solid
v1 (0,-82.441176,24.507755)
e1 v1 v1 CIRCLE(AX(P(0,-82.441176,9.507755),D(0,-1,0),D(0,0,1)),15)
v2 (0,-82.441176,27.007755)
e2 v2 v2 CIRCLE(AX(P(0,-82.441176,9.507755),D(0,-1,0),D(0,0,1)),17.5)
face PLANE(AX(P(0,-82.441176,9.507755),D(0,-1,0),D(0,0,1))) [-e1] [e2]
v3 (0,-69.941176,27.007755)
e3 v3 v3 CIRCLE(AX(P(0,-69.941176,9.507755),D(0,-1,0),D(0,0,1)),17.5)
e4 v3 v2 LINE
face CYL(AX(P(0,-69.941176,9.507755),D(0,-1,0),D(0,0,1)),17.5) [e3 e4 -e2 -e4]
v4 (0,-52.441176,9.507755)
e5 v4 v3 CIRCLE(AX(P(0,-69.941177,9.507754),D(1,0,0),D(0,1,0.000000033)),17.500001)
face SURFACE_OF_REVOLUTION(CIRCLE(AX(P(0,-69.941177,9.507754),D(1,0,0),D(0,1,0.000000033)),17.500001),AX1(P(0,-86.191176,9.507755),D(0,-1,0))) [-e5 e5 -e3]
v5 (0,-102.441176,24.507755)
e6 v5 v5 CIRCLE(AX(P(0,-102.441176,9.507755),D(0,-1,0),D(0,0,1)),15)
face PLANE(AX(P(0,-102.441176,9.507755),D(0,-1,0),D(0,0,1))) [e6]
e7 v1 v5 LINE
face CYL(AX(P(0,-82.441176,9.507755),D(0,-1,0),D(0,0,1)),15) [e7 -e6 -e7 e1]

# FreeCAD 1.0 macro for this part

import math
import FreeCAD as App
import Part
import Sketcher
from FreeCAD import Vector
Q = App.Units.Quantity

doc = App.newDocument("Part")
body = doc.addObject("PartDesign::Body", "Body")

# Sketch on YZ plane
sketch1 = doc.addObject("Sketcher::SketchObject", "Sketch")
body.addObject(sketch1)
sketch1.AttachmentSupport = (doc.YZ_Plane, [""])
sketch1.MapMode = "FlatFace"
sketch1.addGeometry([
    Part.LineSegment(Vector(-102.4, 24.5, 0), Vector(-102.4, 9.5, 0)),  # 0
    Part.LineSegment(Vector(-102.4, 9.5, 0), Vector(-52.4, 9.5, 0)),  # 1
    Part.ArcOfCircle(Part.Circle(Vector(-69.9, 9.5, 0), Vector(0, 0, 1), 17.5), math.radians(0), math.radians(90)),  # 2
    Part.LineSegment(Vector(-69.9, 27, 0), Vector(-82.4, 27, 0)),  # 3
    Part.LineSegment(Vector(-82.4, 27, 0), Vector(-82.4, 24.5, 0)),  # 4
    Part.LineSegment(Vector(-82.4, 24.5, 0), Vector(-102.4, 24.5, 0)),  # 5
], False)
sketch1.addGeometry(Part.LineSegment(Vector(-52.4, 9.5, 0), Vector(-102.4, 9.5, 0)), True)  # axis
sketch1.addConstraint([
    Sketcher.Constraint("Coincident", 0, 2, 1, 1),
    Sketcher.Constraint("Coincident", 1, 2, 2, 1),
    Sketcher.Constraint("Tangent", 2, 2, 3, 1),
    Sketcher.Constraint("Coincident", 3, 2, 4, 1),
    Sketcher.Constraint("Coincident", 4, 2, 5, 1),
    Sketcher.Constraint("Coincident", 5, 2, 0, 1),
    Sketcher.Constraint("Vertical", 0),
    Sketcher.Constraint("Horizontal", 1),
    Sketcher.Constraint("Horizontal", 3),
    Sketcher.Constraint("Vertical", 4),
    Sketcher.Constraint("Horizontal", 5),
    Sketcher.Constraint("Horizontal", 6),
    Sketcher.Constraint("Coincident", 6, 1, 1, 2),
    Sketcher.Constraint("Horizontal", 2, 3, 0, 2),
    Sketcher.Constraint("Vertical", 5, 2, 6, 2),
    Sketcher.Constraint("Radius", 2, Q("17.500001 mm")),
    Sketcher.Constraint("DistanceX", 1, 1, 1, 2, Q("50 mm")),
    Sketcher.Constraint("DistanceX", 5, 2, 5, 1, Q("20 mm")),
    Sketcher.Constraint("DistanceY", 0, 2, 0, 1, Q("15 mm")),
    Sketcher.Constraint("DistanceX", 2, 3, -1, 1, Q("69.941177 mm")),
    Sketcher.Constraint("DistanceY", -1, 1, 2, 3, Q("9.507754 mm")),
])
revolution = doc.addObject("PartDesign::Revolution", "Revolution")
body.addObject(revolution)
revolution.Profile = sketch1
revolution.ReferenceAxis = (sketch1, ["Axis0"])
revolution.Angle = 360

doc.recompute()
